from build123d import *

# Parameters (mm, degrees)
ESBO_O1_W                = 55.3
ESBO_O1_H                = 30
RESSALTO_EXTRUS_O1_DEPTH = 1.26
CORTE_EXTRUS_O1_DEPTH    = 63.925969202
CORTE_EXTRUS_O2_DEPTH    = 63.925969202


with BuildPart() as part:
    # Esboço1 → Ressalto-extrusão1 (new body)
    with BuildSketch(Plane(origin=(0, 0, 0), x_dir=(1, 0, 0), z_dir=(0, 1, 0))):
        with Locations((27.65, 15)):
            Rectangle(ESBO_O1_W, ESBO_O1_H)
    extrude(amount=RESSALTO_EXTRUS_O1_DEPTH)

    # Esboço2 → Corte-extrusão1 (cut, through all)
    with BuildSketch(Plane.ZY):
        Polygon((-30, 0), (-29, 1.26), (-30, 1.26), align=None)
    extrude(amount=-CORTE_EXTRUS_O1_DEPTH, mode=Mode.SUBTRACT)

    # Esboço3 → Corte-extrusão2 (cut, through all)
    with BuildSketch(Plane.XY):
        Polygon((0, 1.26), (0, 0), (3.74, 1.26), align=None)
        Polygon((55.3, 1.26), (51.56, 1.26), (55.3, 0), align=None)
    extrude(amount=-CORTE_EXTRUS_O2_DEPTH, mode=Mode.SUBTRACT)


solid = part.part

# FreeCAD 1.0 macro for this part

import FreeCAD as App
import Part
import Sketcher

V = App.Vector

doc = App.newDocument("Part")
body = doc.addObject("PartDesign::Body", "Body")

# Sketch on XZ plane
sketch1 = body.newObject("Sketcher::SketchObject", "Sketch")
sketch1.AttachmentSupport = (doc.getObject("XZ_Plane"), [""])
sketch1.MapMode = "FlatFace"
sketch1.addGeometry([
    Part.LineSegment(V(0, -30, 0), V(0, 0, 0)),
    Part.LineSegment(V(0, 0, 0), V(55, 0, 0)),
    Part.LineSegment(V(55, 0, 0), V(55, -30, 0)),
    Part.LineSegment(V(55, -30, 0), V(0, -30, 0)),
], False)
sketch1.addConstraint([
    Sketcher.Constraint("Coincident", 0, 2, 1, 1),
    Sketcher.Constraint("Coincident", 1, 2, 2, 1),
    Sketcher.Constraint("Coincident", 2, 2, 3, 1),
    Sketcher.Constraint("Coincident", 3, 2, 0, 1),
    Sketcher.Constraint("Vertical", 0),
    Sketcher.Constraint("Horizontal", 1),
    Sketcher.Constraint("Vertical", 2),
    Sketcher.Constraint("Horizontal", 3),
    Sketcher.Constraint("Coincident", 0, 2, -1, 1),
    Sketcher.Constraint("DistanceY", 0, 1, 0, 2, 30.0),
    Sketcher.Constraint("DistanceX", 1, 1, 1, 2, 55.3),
])
pad1 = body.newObject("PartDesign::Pad", "Pad")
pad1.Profile = sketch1
pad1.Length = 1.26
pad1.Reversed = True

# Sketch on YZ plane
sketch2 = body.newObject("Sketcher::SketchObject", "Sketch001")
sketch2.AttachmentSupport = (doc.getObject("YZ_Plane"), [""])
sketch2.MapMode = "FlatFace"
sketch2.addGeometry([
    Part.LineSegment(V(0, -30, 0), V(1.3, -29, 0)),
    Part.LineSegment(V(1.3, -29, 0), V(1.3, -30, 0)),
    Part.LineSegment(V(1.3, -30, 0), V(0, -30, 0)),
], False)
sketch2.addConstraint([
    Sketcher.Constraint("Coincident", 0, 2, 1, 1),
    Sketcher.Constraint("Coincident", 1, 2, 2, 1),
    Sketcher.Constraint("Coincident", 2, 2, 0, 1),
    Sketcher.Constraint("Vertical", 1),
    Sketcher.Constraint("Horizontal", 2),
    Sketcher.Constraint("PointOnObject", 2, 2, -2),
    Sketcher.Constraint("DistanceY", 1, 2, 1, 1, 1.0),
    Sketcher.Constraint("DistanceY", 0, 2, -1, 1, 29.0),
    Sketcher.Constraint("DistanceX", 2, 2, 2, 1, 1.26),
])
pocket1 = body.newObject("PartDesign::Pocket", "Pocket")
pocket1.Profile = sketch2
pocket1.Type = "ThroughAll"
pocket1.Reversed = True

# Sketch on XY plane
sketch3 = body.newObject("Sketcher::SketchObject", "Sketch002")
sketch3.AttachmentSupport = (doc.getObject("XY_Plane"), [""])
sketch3.MapMode = "FlatFace"
sketch3.addGeometry([
    Part.LineSegment(V(0, 1.3, 0), V(0, 0, 0)),  # 0
    Part.LineSegment(V(0, 0, 0), V(3.7, 1.3, 0)),  # 1
    Part.LineSegment(V(3.7, 1.3, 0), V(0, 1.3, 0)),  # 2
    Part.LineSegment(V(55.3, 1.3, 0), V(51.6, 1.3, 0)),  # 3
    Part.LineSegment(V(51.6, 1.3, 0), V(55.3, 0, 0)),  # 4
    Part.LineSegment(V(55.3, 0, 0), V(55.3, 1.3, 0)),  # 5
], False)
sketch3.addConstraint([
    Sketcher.Constraint("Coincident", 0, 2, 1, 1),
    Sketcher.Constraint("Coincident", 1, 2, 2, 1),
    Sketcher.Constraint("Coincident", 2, 2, 0, 1),
    Sketcher.Constraint("Coincident", 3, 2, 4, 1),
    Sketcher.Constraint("Coincident", 4, 2, 5, 1),
    Sketcher.Constraint("Coincident", 5, 2, 3, 1),
    Sketcher.Constraint("Vertical", 0),
    Sketcher.Constraint("Horizontal", 2),
    Sketcher.Constraint("Horizontal", 3),
    Sketcher.Constraint("Vertical", 5),
    Sketcher.Constraint("Coincident", 0, 2, -1, 1),
    Sketcher.Constraint("PointOnObject", 4, 2, -1),
    Sketcher.Constraint("Horizontal", 2, 2, 3, 2),
    Sketcher.Constraint("Equal", 2, 3),
    Sketcher.Constraint("DistanceX", 2, 2, 2, 1, 3.74),
    Sketcher.Constraint("DistanceY", 0, 2, 0, 1, 1.26),
    Sketcher.Constraint("DistanceX", -1, 1, 4, 2, 55.3),
])
pocket2 = body.newObject("PartDesign::Pocket", "Pocket001")
pocket2.Profile = sketch3
pocket2.Type = "ThroughAll"

doc.recompute()
